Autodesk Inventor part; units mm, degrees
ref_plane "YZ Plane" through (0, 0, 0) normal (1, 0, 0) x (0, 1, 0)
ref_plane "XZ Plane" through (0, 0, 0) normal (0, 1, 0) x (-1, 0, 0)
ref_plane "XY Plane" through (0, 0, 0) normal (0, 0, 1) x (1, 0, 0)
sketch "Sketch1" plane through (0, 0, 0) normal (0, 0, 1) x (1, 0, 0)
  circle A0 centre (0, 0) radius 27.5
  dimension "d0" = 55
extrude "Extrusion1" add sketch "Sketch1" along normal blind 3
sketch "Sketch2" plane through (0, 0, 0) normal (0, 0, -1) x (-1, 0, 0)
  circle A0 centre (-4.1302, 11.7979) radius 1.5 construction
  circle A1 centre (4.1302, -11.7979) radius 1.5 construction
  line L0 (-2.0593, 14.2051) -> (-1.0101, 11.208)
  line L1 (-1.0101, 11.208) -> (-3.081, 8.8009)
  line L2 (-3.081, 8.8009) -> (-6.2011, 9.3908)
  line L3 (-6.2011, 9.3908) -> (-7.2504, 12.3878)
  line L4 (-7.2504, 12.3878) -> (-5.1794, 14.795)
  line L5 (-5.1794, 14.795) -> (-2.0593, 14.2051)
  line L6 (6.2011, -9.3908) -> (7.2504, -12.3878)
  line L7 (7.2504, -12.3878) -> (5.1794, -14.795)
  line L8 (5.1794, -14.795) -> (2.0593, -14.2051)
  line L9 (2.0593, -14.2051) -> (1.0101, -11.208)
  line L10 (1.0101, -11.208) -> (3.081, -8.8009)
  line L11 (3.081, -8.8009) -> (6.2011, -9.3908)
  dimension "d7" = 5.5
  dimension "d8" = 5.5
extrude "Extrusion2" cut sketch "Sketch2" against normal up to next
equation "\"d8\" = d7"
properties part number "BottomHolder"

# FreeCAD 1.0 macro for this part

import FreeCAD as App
import Part
import Sketcher

V = App.Vector

doc = App.newDocument("Part")
params = doc.addObject("Spreadsheet::Sheet", "Params")
for row, (alias, value) in enumerate([
    ("sketch1_diameter", "55 mm"),
    ("pad1_length", "3 mm"),
], start=1):
    params.set(f"A{row}", alias)
    params.set(f"B{row}", "=" + value)
    params.setAlias(f"B{row}", alias)

body = doc.addObject("PartDesign::Body", "Body")

sketch1 = body.newObject("Sketcher::SketchObject", "Sketch")
sketch1.AttachmentSupport = (doc.getObject("XY_Plane"), [""])
sketch1.MapMode = "FlatFace"
sketch1.addGeometry(Part.Circle(V(0, 0, 0), V(0, 0, 1), 28), False)
sketch1.addConstraint([
    Sketcher.Constraint("Coincident", 0, 3, -1, 1),
    Sketcher.Constraint("Diameter", 0, 55.0),
])
sketch1.setExpression("Constraints[1]", "Params.sketch1_diameter")
pad1 = body.newObject("PartDesign::Pad", "Pad")
pad1.Profile = sketch1
pad1.setExpression("Length", "Params.pad1_length")

sketch2 = body.newObject("Sketcher::SketchObject", "Sketch001")
sketch2.AttachmentSupport = (doc.getObject("XY_Plane"), [""])
sketch2.MapMode = "FlatFace"
sketch2.addGeometry([
    Part.LineSegment(V(1, 11.2, 0), V(2.1, 14.2, 0)),
    Part.LineSegment(V(2.1, 14.2, 0), V(5.2, 14.8, 0)),
    Part.LineSegment(V(5.2, 14.8, 0), V(7.3, 12.4, 0)),
    Part.LineSegment(V(7.3, 12.4, 0), V(6.2, 9.4, 0)),
    Part.LineSegment(V(6.2, 9.4, 0), V(3.1, 8.8, 0)),
    Part.LineSegment(V(3.1, 8.8, 0), V(1, 11.2, 0)),
    Part.LineSegment(V(-7.3, -12.4, 0), V(-6.2, -9.4, 0)),
    Part.LineSegment(V(-6.2, -9.4, 0), V(-3.1, -8.8, 0)),
    Part.LineSegment(V(-3.1, -8.8, 0), V(-1, -11.2, 0)),
    Part.LineSegment(V(-1, -11.2, 0), V(-2.1, -14.2, 0)),
    Part.LineSegment(V(-2.1, -14.2, 0), V(-5.2, -14.8, 0)),
    Part.LineSegment(V(-5.2, -14.8, 0), V(-7.3, -12.4, 0)),
], False)
sketch2.addConstraint([
    Sketcher.Constraint("Coincident", 0, 2, 1, 1),
    Sketcher.Constraint("Coincident", 1, 2, 2, 1),
    Sketcher.Constraint("Coincident", 2, 2, 3, 1),
    Sketcher.Constraint("Coincident", 3, 2, 4, 1),
    Sketcher.Constraint("Coincident", 4, 2, 5, 1),
    Sketcher.Constraint("Coincident", 5, 2, 0, 1),
    Sketcher.Constraint("Coincident", 6, 2, 7, 1),
    Sketcher.Constraint("Coincident", 7, 2, 8, 1),
    Sketcher.Constraint("Coincident", 8, 2, 9, 1),
    Sketcher.Constraint("Coincident", 9, 2, 10, 1),
    Sketcher.Constraint("Coincident", 10, 2, 11, 1),
    Sketcher.Constraint("Coincident", 11, 2, 6, 1),
    Sketcher.Constraint("Symmetric", 3, 2, 6, 2, -1, 1),
    Sketcher.Constraint("Symmetric", 4, 2, 7, 2, -1, 1),
    Sketcher.Constraint("Symmetric", 5, 2, 8, 2, -1, 1),
    Sketcher.Constraint("Symmetric", 0, 2, 9, 2, -1, 1),
    Sketcher.Constraint("Symmetric", 1, 2, 10, 2, -1, 1),
    Sketcher.Constraint("Symmetric", 2, 2, 11, 2, -1, 1),
    Sketcher.Constraint("Parallel", 0, 3),
    Sketcher.Constraint("Parallel", 1, 4),
    Sketcher.Constraint("Parallel", 2, 5),
    Sketcher.Constraint("Equal", 0, 1),
    Sketcher.Constraint("Equal", 1, 2),
    Sketcher.Constraint("Equal", 2, 3),
    Sketcher.Constraint("DistanceX", -1, 1, 5, 2, 1.01),
    Sketcher.Constraint("DistanceX", 0, 2, 1, 2, 3.12),
    Sketcher.Constraint("DistanceY", 0, 2, 1, 2, 0.59),
    Sketcher.Constraint("DistanceY", -1, 1, 0, 2, 14.205),
    Sketcher.Constraint("DistanceX", -1, 1, 3, 2, 6.201),
    Sketcher.Constraint("DistanceY", -1, 1, 4, 2, 8.801),
])
pocket1 = body.newObject("PartDesign::Pocket", "Pocket")
pocket1.Profile = sketch2
pocket1.Type = "UpToFirst"
pocket1.Reversed = True

doc.recompute()
